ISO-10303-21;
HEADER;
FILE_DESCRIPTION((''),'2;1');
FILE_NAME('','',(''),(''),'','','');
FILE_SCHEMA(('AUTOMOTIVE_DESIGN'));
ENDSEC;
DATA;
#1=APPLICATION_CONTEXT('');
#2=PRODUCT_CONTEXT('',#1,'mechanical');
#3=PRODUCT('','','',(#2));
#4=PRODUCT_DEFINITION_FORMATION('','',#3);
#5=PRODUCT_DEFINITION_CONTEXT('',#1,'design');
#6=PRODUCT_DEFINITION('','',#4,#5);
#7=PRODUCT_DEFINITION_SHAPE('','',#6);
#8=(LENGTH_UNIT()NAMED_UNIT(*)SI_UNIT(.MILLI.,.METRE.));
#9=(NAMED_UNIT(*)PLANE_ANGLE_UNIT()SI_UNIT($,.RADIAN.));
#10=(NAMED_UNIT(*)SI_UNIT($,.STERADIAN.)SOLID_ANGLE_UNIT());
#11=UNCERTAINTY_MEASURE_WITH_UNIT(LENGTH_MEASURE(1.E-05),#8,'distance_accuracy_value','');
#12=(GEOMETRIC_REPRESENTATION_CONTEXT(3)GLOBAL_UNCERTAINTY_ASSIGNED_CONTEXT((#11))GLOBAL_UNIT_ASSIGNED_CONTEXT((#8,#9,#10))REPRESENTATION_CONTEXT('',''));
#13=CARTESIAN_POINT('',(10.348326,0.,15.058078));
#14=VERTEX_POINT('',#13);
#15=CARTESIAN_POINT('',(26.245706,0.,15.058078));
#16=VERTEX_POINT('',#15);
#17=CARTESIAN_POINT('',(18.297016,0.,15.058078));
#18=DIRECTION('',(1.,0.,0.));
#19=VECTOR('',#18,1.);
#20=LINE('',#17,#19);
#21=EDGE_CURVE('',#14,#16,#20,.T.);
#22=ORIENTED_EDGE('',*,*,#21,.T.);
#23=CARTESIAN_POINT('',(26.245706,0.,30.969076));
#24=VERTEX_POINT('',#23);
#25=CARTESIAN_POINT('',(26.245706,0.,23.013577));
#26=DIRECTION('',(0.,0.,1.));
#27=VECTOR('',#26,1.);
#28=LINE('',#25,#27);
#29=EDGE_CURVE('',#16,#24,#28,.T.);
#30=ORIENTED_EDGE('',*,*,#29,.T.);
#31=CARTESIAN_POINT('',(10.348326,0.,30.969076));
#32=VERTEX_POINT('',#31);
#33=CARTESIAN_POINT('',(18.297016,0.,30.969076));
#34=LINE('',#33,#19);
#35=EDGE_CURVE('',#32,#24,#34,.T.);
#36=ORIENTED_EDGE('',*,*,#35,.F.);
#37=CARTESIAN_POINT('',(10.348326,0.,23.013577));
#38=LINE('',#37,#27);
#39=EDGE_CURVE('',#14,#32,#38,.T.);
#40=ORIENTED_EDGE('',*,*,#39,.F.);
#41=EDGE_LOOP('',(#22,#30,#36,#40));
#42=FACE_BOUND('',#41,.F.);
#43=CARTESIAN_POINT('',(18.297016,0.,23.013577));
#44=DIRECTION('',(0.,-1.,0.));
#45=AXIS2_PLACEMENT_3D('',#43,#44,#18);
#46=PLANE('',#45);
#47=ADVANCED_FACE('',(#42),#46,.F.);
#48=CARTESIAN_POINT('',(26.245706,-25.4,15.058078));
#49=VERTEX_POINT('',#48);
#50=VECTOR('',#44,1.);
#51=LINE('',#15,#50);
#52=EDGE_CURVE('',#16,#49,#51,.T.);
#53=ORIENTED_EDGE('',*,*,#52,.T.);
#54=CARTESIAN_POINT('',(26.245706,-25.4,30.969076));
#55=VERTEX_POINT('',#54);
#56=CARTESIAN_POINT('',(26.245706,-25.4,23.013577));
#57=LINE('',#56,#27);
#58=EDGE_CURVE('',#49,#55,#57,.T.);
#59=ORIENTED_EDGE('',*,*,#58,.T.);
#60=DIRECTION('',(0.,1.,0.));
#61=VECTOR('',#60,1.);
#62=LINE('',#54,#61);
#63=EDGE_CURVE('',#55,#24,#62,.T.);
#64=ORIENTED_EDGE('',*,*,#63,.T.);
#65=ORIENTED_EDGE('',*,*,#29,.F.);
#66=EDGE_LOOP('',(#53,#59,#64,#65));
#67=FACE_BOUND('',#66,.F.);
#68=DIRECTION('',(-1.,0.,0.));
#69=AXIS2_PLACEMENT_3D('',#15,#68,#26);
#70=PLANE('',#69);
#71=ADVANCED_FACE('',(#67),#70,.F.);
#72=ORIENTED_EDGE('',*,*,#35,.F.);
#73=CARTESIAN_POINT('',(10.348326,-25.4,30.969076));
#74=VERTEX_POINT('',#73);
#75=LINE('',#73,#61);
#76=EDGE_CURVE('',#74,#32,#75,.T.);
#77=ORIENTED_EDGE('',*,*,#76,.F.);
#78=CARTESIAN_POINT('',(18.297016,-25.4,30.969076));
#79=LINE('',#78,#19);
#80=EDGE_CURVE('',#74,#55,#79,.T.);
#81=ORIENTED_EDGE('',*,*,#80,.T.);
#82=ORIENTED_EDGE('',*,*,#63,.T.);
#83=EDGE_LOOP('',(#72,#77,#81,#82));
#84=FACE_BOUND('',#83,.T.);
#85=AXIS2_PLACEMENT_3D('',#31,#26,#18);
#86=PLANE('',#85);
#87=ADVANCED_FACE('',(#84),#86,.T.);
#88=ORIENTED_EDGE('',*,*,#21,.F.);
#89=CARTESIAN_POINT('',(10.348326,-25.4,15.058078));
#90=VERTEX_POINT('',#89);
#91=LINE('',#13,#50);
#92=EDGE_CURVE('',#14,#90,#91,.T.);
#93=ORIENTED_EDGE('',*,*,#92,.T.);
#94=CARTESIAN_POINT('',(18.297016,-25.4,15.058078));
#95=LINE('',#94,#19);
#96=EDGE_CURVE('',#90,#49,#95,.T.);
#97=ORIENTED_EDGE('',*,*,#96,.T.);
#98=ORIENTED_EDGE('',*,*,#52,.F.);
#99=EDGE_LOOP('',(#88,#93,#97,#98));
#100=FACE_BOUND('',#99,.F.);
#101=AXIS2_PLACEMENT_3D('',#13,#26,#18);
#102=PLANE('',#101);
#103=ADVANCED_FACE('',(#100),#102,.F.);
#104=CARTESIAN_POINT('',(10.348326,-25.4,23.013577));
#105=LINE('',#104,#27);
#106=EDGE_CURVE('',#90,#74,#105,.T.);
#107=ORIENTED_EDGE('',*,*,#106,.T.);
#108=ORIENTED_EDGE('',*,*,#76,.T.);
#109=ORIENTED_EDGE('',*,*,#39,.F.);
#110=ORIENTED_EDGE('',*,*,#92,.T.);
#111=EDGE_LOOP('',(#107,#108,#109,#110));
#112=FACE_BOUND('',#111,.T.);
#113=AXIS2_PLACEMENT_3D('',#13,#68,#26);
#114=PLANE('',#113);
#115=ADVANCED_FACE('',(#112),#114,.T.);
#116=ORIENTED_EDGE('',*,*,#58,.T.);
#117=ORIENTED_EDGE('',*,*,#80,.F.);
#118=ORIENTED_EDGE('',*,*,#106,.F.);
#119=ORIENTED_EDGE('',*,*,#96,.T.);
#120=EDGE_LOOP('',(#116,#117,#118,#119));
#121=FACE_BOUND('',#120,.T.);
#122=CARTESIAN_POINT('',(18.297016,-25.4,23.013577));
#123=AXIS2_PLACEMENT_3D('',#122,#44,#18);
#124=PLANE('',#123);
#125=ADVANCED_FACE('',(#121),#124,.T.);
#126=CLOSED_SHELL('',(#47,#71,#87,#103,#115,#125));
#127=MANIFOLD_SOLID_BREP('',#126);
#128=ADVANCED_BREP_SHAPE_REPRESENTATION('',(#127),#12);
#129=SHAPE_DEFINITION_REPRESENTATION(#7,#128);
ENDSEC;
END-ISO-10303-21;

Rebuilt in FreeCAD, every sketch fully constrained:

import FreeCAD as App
import Part
import Sketcher

V = App.Vector
Q = App.Units.Quantity


def add_polygon(sketch, points):
    """Adds a closed chain of lines whose ends are joined by coincident constraints."""
    first, n = sketch.GeometryCount, len(points)
    for a, b in zip(points, points[1:] + points[:1]):
        sketch.addGeometry(Part.LineSegment(App.Vector(*a, 0), App.Vector(*b, 0)), False)
    for i in range(n):
        sketch.addConstraint(Sketcher.Constraint("Coincident", first + i, 2, first + (i + 1) % n, 1))

doc = App.newDocument("Part")
body = doc.addObject("PartDesign::Body", "Body")

# Sketch on XZ plane
sketch1 = doc.addObject("Sketcher::SketchObject", "Sketch")
body.addObject(sketch1)
sketch1.AttachmentSupport = (doc.XZ_Plane, [""])
sketch1.MapMode = "FlatFace"
add_polygon(sketch1, [(10.348326, 30.969076), (10.348326, 15.058078), (26.245706, 15.058078), (26.245706, 30.969076)])  # lines 0-3
sketch1.addConstraint(Sketcher.Constraint("Vertical", 0))
sketch1.addConstraint(Sketcher.Constraint("Horizontal", 1))
sketch1.addConstraint(Sketcher.Constraint("Vertical", 2))
sketch1.addConstraint(Sketcher.Constraint("Horizontal", 3))
sketch1.addConstraint(Sketcher.Constraint("DistanceY", 0, 2, 0, 1, 15.910998))
sketch1.addConstraint(Sketcher.Constraint("DistanceX", 1, 1, 1, 2, 15.89738))
sketch1.addConstraint(Sketcher.Constraint("DistanceX", -1, 1, 0, 2, 10.348326))
sketch1.addConstraint(Sketcher.Constraint("DistanceY", -1, 1, 0, 2, 15.058078))
pad1 = doc.addObject("PartDesign::Pad", "Pad")
body.addObject(pad1)
pad1.Profile = sketch1
pad1.Length = 4.798125

# Sketch on XZ plane
sketch2 = doc.addObject("Sketcher::SketchObject", "Sketch001")
body.addObject(sketch2)
sketch2.AttachmentSupport = (doc.XZ_Plane, [""])
sketch2.MapMode = "FlatFace"
add_polygon(sketch2, [(10.348326, 30.969076), (10.348326, 15.058078), (26.245706, 15.058078), (26.245706, 30.969076)])  # lines 0-3
sketch2.addConstraint(Sketcher.Constraint("Vertical", 0))
sketch2.addConstraint(Sketcher.Constraint("Horizontal", 1))
sketch2.addConstraint(Sketcher.Constraint("Vertical", 2))
sketch2.addConstraint(Sketcher.Constraint("Horizontal", 3))
sketch2.addConstraint(Sketcher.Constraint("DistanceY", 0, 2, 0, 1, 15.910998))
sketch2.addConstraint(Sketcher.Constraint("DistanceX", 1, 1, 1, 2, 15.89738))
sketch2.addConstraint(Sketcher.Constraint("DistanceX", -1, 1, 0, 2, 10.348326))
sketch2.addConstraint(Sketcher.Constraint("DistanceY", -1, 1, 0, 2, 15.058078))
pad2 = doc.addObject("PartDesign::Pad", "Pad001")
body.addObject(pad2)
pad2.Profile = sketch2
pad2.Length = Q("1 in")

doc.recompute()
